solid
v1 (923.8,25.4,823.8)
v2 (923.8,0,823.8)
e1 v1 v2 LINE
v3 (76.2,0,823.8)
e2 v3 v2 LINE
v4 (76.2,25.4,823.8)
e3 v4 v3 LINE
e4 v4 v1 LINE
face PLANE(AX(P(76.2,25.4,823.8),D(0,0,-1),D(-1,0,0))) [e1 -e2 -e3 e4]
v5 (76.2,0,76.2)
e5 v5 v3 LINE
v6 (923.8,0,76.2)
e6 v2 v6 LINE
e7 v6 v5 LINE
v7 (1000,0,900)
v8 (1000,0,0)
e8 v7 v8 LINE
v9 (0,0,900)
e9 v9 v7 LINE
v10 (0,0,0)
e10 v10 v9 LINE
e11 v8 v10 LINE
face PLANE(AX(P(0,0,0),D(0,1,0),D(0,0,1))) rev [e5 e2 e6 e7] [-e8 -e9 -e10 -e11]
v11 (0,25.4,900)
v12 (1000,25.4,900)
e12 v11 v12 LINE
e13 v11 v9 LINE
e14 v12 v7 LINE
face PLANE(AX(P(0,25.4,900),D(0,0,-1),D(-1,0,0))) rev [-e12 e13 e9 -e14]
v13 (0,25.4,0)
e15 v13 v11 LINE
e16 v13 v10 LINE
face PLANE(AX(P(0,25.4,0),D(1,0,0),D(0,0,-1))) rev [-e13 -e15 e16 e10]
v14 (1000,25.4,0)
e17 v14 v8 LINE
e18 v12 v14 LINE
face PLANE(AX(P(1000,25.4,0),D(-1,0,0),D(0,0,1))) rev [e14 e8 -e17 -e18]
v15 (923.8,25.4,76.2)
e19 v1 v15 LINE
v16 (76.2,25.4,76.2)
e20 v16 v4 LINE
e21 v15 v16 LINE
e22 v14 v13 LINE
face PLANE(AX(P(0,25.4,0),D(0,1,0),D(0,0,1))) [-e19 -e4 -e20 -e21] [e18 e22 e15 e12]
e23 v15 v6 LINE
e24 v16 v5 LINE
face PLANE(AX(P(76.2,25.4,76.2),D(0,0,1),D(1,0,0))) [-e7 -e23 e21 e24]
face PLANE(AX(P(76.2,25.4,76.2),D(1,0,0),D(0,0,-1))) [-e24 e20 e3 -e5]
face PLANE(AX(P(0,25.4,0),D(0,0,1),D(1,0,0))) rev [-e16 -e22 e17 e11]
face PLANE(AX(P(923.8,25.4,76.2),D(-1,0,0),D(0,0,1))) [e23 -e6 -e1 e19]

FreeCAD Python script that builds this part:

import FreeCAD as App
import Part
import Sketcher

doc = App.newDocument("Part")
params = doc.addObject("Spreadsheet::Sheet", "Params")
for row, (alias, value) in enumerate([
    ("sketch1_width", "1000 mm"),
    ("sketch1_height", "900 mm"),
    ("sketch1_width2", "847.6 mm"),
    ("sketch1_height2", "747.6 mm"),
    ("pad1_length", "25.4 mm"),
], start=1):
    params.set(f"A{row}", alias)
    params.set(f"B{row}", "=" + value)
    params.setAlias(f"B{row}", alias)

body = doc.addObject("PartDesign::Body", "Body")

sketch1 = body.newObject("Sketcher::SketchObject", "Sketch")
sketch1.AttachmentSupport = (doc.getObject("XZ_Plane"), [""])
sketch1.MapMode = "FlatFace"
sketch1.addGeometry(Part.LineSegment(App.Vector(0, 0, 0), App.Vector(0, 900, 0)), False)
sketch1.addGeometry(Part.LineSegment(App.Vector(0, 900, 0), App.Vector(1000, 900, 0)), False)
sketch1.addGeometry(Part.LineSegment(App.Vector(1000, 900, 0), App.Vector(1000, 0, 0)), False)
sketch1.addGeometry(Part.LineSegment(App.Vector(1000, 0, 0), App.Vector(0, 0, 0)), False)
sketch1.addGeometry(Part.LineSegment(App.Vector(924, 824, 0), App.Vector(76, 824, 0)), False)
sketch1.addGeometry(Part.LineSegment(App.Vector(76, 824, 0), App.Vector(76, 76, 0)), False)
sketch1.addGeometry(Part.LineSegment(App.Vector(76, 76, 0), App.Vector(924, 76, 0)), False)
sketch1.addGeometry(Part.LineSegment(App.Vector(924, 76, 0), App.Vector(924, 824, 0)), False)
sketch1.addConstraint(Sketcher.Constraint("Coincident", 0, 2, 1, 1))
sketch1.addConstraint(Sketcher.Constraint("Coincident", 1, 2, 2, 1))
sketch1.addConstraint(Sketcher.Constraint("Coincident", 2, 2, 3, 1))
sketch1.addConstraint(Sketcher.Constraint("Coincident", 3, 2, 0, 1))
sketch1.addConstraint(Sketcher.Constraint("Coincident", 4, 2, 5, 1))
sketch1.addConstraint(Sketcher.Constraint("Coincident", 5, 2, 6, 1))
sketch1.addConstraint(Sketcher.Constraint("Coincident", 6, 2, 7, 1))
sketch1.addConstraint(Sketcher.Constraint("Coincident", 7, 2, 4, 1))
sketch1.addConstraint(Sketcher.Constraint("Vertical", 0))
sketch1.addConstraint(Sketcher.Constraint("Horizontal", 1))
sketch1.addConstraint(Sketcher.Constraint("Vertical", 2))
sketch1.addConstraint(Sketcher.Constraint("Horizontal", 3))
sketch1.addConstraint(Sketcher.Constraint("Horizontal", 4))
sketch1.addConstraint(Sketcher.Constraint("Vertical", 5))
sketch1.addConstraint(Sketcher.Constraint("Horizontal", 6))
sketch1.addConstraint(Sketcher.Constraint("Vertical", 7))
sketch1.addConstraint(Sketcher.Constraint("Coincident", 3, 2, -1, 1))
sketch1.addConstraint(Sketcher.Constraint("DistanceX", 1, 1, 1, 2, 1000.0))
sketch1.addConstraint(Sketcher.Constraint("DistanceY", 0, 1, 0, 2, 900.0))
sketch1.addConstraint(Sketcher.Constraint("DistanceX", 4, 2, 4, 1, 847.6))
sketch1.addConstraint(Sketcher.Constraint("DistanceY", 5, 2, 5, 1, 747.6))
sketch1.addConstraint(Sketcher.Constraint("DistanceX", -1, 1, 4, 2, 76.2))
sketch1.addConstraint(Sketcher.Constraint("DistanceY", -1, 1, 4, 2, 823.8))
sketch1.setExpression("Constraints[17]", "Params.sketch1_width")
sketch1.setExpression("Constraints[18]", "Params.sketch1_height")
sketch1.setExpression("Constraints[19]", "Params.sketch1_width2")
sketch1.setExpression("Constraints[20]", "Params.sketch1_height2")
pad1 = body.newObject("PartDesign::Pad", "Pad")
pad1.Profile = sketch1
pad1.setExpression("Length", "Params.pad1_length")
pad1.Reversed = True

doc.recompute()
